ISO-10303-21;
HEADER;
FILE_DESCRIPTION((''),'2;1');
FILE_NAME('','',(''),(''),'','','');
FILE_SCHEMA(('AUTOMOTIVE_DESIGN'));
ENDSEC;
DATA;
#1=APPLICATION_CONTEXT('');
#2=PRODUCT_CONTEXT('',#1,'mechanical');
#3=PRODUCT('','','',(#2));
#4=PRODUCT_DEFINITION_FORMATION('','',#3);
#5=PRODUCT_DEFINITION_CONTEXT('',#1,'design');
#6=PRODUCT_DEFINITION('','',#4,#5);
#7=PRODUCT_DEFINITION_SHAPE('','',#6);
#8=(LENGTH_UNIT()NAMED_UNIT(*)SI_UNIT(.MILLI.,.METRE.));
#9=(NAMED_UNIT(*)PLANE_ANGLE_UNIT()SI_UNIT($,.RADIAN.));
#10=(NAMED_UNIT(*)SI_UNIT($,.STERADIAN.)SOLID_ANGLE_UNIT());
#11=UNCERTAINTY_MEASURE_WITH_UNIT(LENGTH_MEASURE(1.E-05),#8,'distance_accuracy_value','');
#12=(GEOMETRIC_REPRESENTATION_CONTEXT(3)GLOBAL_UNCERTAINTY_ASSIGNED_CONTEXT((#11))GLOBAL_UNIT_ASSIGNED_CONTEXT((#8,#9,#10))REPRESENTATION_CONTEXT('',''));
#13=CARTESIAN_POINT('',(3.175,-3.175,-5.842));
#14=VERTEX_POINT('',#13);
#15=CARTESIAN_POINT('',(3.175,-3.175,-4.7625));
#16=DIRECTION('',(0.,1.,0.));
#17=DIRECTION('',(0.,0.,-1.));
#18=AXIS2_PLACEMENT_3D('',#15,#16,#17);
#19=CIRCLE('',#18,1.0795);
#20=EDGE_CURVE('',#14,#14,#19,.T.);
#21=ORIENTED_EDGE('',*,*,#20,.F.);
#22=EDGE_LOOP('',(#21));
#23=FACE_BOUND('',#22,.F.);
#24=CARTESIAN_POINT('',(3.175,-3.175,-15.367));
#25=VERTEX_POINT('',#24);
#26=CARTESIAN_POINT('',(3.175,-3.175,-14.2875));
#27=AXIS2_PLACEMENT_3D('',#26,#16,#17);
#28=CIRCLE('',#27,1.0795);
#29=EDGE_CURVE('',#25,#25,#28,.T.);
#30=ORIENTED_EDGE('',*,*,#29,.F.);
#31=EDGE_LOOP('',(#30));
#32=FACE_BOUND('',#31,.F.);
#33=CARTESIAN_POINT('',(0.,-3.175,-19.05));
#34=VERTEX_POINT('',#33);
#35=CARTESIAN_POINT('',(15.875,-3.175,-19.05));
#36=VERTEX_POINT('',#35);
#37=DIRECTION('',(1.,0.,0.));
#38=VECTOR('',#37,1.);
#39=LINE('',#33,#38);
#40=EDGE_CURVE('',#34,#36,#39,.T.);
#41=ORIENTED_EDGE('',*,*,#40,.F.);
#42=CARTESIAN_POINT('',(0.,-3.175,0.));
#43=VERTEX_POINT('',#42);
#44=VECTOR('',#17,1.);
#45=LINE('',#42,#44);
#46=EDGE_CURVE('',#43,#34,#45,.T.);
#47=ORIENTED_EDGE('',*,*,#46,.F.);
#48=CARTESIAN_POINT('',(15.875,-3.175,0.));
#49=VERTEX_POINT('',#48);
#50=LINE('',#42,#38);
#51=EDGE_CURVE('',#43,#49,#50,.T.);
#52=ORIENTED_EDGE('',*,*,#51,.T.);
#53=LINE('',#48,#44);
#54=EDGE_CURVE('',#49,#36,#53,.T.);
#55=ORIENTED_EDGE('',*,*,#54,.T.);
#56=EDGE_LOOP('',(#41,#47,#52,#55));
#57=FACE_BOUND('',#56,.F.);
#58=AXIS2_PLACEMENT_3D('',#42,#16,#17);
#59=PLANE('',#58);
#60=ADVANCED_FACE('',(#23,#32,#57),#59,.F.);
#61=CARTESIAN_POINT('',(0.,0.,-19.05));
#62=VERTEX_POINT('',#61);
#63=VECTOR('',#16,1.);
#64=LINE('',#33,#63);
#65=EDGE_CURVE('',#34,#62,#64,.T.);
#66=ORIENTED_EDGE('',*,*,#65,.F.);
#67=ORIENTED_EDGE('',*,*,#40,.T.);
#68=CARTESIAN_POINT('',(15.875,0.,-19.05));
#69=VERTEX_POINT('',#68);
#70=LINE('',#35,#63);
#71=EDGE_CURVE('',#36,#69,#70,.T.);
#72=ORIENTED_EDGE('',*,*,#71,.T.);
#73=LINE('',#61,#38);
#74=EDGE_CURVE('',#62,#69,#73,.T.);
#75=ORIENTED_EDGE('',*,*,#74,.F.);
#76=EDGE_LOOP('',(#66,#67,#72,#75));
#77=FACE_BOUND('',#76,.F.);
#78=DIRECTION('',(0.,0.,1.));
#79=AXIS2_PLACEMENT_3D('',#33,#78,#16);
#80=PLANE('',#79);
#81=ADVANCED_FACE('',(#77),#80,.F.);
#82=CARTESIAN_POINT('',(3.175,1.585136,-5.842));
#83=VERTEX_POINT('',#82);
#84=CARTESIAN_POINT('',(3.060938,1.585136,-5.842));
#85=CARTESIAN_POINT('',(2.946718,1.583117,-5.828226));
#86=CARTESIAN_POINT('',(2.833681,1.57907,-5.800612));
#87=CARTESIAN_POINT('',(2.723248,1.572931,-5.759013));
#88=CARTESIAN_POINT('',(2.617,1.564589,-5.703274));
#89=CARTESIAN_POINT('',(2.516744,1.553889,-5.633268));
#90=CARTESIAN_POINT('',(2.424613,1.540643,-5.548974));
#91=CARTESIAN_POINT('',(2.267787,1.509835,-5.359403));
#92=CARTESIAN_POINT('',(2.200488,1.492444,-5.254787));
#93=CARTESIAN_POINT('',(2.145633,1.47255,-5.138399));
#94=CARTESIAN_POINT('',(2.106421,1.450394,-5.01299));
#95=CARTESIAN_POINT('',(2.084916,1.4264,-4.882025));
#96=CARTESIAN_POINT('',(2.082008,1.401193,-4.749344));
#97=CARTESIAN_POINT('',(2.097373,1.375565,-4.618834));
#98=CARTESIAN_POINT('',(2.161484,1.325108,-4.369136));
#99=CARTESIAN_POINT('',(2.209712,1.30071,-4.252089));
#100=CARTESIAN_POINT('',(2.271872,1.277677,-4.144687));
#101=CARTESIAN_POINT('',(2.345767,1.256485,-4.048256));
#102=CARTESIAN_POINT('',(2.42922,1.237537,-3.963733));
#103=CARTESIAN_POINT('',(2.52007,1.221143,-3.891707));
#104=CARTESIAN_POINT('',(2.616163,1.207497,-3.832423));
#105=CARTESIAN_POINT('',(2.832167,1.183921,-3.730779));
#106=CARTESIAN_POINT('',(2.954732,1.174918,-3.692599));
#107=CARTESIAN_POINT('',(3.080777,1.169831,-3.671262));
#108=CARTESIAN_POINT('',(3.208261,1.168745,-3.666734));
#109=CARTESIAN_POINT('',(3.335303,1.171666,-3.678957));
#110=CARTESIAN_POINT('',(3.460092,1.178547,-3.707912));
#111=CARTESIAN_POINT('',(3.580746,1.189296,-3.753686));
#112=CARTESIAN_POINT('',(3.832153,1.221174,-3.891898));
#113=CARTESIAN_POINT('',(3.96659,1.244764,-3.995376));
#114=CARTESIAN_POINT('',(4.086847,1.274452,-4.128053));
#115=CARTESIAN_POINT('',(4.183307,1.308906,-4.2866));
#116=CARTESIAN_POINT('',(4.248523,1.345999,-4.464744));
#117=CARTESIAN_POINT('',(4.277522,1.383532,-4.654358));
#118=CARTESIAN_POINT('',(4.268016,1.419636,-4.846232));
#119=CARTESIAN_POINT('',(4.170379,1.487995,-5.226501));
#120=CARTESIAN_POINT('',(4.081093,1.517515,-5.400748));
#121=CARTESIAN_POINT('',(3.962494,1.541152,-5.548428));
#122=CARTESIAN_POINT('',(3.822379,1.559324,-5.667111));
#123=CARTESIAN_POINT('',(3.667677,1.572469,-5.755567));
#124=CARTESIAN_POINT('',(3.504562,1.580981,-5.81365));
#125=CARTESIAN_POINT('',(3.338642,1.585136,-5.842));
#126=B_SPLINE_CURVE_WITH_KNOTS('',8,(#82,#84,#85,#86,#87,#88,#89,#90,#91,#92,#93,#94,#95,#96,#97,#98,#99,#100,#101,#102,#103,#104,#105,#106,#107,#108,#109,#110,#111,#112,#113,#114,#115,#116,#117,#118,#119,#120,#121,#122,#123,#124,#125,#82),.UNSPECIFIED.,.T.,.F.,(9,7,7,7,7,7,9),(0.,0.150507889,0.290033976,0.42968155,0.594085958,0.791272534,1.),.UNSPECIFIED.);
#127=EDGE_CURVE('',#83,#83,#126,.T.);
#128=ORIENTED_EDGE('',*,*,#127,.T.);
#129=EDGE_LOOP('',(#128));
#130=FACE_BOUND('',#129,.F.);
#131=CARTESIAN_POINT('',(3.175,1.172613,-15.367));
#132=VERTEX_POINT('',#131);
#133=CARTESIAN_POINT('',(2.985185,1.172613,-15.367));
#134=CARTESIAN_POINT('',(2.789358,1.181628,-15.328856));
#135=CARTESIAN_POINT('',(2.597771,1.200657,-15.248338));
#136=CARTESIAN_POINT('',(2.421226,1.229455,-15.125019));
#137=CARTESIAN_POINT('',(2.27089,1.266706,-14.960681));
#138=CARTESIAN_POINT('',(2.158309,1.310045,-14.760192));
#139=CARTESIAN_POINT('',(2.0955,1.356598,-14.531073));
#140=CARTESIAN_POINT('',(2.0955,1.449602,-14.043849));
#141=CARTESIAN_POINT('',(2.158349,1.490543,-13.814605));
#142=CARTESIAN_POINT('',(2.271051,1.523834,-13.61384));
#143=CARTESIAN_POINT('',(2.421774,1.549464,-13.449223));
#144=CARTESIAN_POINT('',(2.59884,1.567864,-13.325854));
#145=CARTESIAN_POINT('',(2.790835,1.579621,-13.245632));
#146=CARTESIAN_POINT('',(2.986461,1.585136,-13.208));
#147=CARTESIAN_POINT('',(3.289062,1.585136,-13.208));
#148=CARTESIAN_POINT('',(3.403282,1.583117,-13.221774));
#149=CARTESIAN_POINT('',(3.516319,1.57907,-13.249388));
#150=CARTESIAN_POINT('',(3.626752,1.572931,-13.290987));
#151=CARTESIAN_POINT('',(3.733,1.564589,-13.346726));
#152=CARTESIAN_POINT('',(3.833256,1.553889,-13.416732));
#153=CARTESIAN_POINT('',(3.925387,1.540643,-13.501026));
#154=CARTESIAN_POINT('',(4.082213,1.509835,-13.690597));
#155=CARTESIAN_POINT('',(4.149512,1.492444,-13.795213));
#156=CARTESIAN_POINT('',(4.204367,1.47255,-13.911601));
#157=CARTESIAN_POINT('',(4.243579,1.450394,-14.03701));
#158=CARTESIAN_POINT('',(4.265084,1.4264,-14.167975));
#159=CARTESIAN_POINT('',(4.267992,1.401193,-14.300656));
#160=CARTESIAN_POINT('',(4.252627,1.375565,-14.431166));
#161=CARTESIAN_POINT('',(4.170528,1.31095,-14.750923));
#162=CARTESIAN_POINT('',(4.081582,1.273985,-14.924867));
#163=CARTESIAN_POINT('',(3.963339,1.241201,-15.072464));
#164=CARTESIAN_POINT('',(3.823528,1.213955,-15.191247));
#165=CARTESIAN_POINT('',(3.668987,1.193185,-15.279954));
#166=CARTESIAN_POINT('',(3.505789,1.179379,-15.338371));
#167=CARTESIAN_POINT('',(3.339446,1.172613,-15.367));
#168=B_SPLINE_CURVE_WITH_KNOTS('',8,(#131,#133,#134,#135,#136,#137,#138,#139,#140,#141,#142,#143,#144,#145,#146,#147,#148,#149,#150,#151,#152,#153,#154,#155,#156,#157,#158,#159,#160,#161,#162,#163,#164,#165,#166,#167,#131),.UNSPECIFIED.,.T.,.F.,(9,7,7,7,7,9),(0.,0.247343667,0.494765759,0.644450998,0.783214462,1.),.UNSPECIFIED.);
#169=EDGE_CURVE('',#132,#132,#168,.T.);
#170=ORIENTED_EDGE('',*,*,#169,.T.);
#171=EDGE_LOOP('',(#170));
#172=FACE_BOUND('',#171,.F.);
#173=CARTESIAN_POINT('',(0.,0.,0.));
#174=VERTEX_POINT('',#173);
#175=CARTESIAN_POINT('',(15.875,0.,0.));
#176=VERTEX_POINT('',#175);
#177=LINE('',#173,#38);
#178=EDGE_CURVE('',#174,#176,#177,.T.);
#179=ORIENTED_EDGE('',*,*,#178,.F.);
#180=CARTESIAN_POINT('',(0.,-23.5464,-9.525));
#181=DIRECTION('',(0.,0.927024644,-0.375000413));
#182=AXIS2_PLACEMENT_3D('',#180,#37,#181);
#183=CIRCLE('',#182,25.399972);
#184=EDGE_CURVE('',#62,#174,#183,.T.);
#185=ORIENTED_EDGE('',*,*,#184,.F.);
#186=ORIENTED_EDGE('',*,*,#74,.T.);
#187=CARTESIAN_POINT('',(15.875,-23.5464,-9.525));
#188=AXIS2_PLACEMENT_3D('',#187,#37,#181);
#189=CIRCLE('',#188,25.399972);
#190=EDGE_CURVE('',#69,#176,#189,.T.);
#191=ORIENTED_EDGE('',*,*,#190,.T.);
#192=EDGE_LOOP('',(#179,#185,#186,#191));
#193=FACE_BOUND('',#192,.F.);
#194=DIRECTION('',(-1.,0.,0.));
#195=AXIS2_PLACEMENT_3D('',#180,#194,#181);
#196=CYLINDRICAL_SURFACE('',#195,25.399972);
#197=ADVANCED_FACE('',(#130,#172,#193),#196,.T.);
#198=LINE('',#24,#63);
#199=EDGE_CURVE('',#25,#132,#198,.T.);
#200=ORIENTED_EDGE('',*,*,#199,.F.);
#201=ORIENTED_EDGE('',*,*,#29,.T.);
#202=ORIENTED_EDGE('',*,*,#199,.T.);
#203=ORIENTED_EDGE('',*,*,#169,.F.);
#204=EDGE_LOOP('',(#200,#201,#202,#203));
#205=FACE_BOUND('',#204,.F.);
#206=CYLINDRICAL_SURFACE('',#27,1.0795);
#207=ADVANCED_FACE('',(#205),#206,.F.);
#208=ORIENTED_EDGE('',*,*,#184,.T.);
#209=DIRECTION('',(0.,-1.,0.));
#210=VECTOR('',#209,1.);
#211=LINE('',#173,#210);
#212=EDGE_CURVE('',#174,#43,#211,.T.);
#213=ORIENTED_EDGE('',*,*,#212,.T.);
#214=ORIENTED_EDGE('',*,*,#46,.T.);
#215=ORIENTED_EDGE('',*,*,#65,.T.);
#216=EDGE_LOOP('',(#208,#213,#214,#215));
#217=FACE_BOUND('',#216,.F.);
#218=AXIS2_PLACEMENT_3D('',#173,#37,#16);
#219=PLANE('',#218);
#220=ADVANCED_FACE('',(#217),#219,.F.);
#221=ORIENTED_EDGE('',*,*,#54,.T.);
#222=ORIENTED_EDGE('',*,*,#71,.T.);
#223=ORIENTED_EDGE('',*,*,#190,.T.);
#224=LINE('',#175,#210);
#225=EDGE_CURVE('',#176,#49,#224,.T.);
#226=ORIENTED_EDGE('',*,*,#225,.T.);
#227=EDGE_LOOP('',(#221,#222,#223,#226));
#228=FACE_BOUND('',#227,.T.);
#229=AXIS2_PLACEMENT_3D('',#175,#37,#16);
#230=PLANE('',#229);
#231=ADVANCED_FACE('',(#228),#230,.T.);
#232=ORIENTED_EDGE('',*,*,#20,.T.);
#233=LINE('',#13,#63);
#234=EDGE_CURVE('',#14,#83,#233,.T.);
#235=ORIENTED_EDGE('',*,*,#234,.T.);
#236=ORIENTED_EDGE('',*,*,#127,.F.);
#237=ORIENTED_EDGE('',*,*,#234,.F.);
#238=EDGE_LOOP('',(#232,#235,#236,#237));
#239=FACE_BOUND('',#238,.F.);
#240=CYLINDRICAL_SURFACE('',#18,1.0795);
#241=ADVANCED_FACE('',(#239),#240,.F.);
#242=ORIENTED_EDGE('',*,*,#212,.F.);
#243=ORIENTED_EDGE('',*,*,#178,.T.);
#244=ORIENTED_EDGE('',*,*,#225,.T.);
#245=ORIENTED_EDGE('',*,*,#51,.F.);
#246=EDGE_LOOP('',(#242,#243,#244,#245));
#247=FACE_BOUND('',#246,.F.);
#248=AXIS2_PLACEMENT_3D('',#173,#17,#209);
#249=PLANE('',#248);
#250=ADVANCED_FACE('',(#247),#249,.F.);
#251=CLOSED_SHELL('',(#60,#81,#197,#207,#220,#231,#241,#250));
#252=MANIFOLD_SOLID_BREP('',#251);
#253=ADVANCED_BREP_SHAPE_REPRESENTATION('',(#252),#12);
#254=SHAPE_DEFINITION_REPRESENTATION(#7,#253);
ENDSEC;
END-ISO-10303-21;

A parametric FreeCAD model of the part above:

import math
import FreeCAD as App
import Part
import Sketcher
from FreeCAD import Vector
Q = App.Units.Quantity

doc = App.newDocument("Part")
params = doc.addObject("Spreadsheet::Sheet", "Params")
for row, (alias, value) in enumerate([
    ("sketch1_radius", "1 in"),
    ("sketch1_height", "0.75 in"),
    ("sketch1_width", "0.125 in"),
    ("pad1_length", "0.625 in"),
    ("sketch2_diameter", "0.085 in"),
    ("hole_diameter", "0.085 in"),
    ("hole_depth", "0.25 in"),
], start=1):
    params.set(f"A{row}", alias)
    params.set(f"B{row}", "=" + value)
    params.setAlias(f"B{row}", alias)

body = doc.addObject("PartDesign::Body", "Body")

# Sketch on YZ plane
sketch1 = body.newObject("Sketcher::SketchObject", "Sketch")
sketch1.AttachmentSupport = (doc.getObject("YZ_Plane"), [""])
sketch1.MapMode = "FlatFace"
sketch1.addGeometry([
    Part.ArcOfCircle(Part.Circle(Vector(-23.5, -9.5, 0), Vector(0, 0, 1), 25.4), math.radians(-22), math.radians(22)),
    Part.LineSegment(Vector(0, 0, 0), Vector(-3.2, 0, 0)),
    Part.LineSegment(Vector(-3.2, 0, 0), Vector(-3.2, -19.1, 0)),
    Part.LineSegment(Vector(-3.2, -19.1, 0), Vector(0, -19.1, 0)),
], False)
sketch1.addConstraint([
    Sketcher.Constraint("Coincident", 0, 2, 1, 1),
    Sketcher.Constraint("Coincident", 1, 2, 2, 1),
    Sketcher.Constraint("Coincident", 2, 2, 3, 1),
    Sketcher.Constraint("Coincident", 3, 2, 0, 1),
    Sketcher.Constraint("Horizontal", 1),
    Sketcher.Constraint("Vertical", 2),
    Sketcher.Constraint("Horizontal", 3),
    Sketcher.Constraint("Coincident", 0, 2, -1, 1),
    Sketcher.Constraint("PointOnObject", 3, 2, -2),
    Sketcher.Constraint("Radius", 0, Q("1 in")),
    Sketcher.Constraint("DistanceY", 2, 2, 2, 1, Q("0.75 in")),
    Sketcher.Constraint("DistanceX", 1, 2, 1, 1, Q("0.125 in")),
])
sketch1.setExpression("Constraints[9]", "Params.sketch1_radius")
sketch1.setExpression("Constraints[10]", "Params.sketch1_height")
sketch1.setExpression("Constraints[11]", "Params.sketch1_width")
pad1 = body.newObject("PartDesign::Pad", "Pad")
pad1.Profile = sketch1
pad1.setExpression("Length", "Params.pad1_length")

# Sketch on XZ plane
sketch2 = body.newObject("Sketcher::SketchObject", "Sketch001")
sketch2.AttachmentSupport = (doc.getObject("XZ_Plane"), [""])
sketch2.MapMode = "FlatFace"
sketch2.AttachmentOffset = App.Placement(Vector(0, 0, 0.125 * 25.4), App.Rotation())
sketch2.addGeometry([
    Part.Circle(Vector(3.2, -4.8, 0), Vector(0, 0, 1), 1.1),
    Part.Circle(Vector(3.2, -14.3, 0), Vector(0, 0, 1), 1.1),
], False)
sketch2.addConstraint([
    Sketcher.Constraint("Equal", 0, 1),
    Sketcher.Constraint("Vertical", 0, 3, 1, 3),
    Sketcher.Constraint("Diameter", 0, Q("0.085 in")),
    Sketcher.Constraint("DistanceX", -1, 1, 0, 3, Q("0.125 in")),
    Sketcher.Constraint("DistanceY", 0, 3, -1, 1, Q("0.1875 in")),
    Sketcher.Constraint("DistanceY", 1, 3, -1, 1, Q("0.5625 in")),
])
sketch2.setExpression("Constraints[2]", "Params.sketch2_diameter")
doc.recompute()
hole = body.newObject("PartDesign::Hole", "Hole")
hole.Profile = sketch2
hole.ThreadType = "None"
hole.setExpression("Diameter", "Params.hole_diameter")
hole.DepthType = "Dimension"
hole.setExpression("Depth", "Params.hole_depth")
hole.DrillPoint = "Angled"
hole.DrillPointAngle = 118

doc.recompute()
